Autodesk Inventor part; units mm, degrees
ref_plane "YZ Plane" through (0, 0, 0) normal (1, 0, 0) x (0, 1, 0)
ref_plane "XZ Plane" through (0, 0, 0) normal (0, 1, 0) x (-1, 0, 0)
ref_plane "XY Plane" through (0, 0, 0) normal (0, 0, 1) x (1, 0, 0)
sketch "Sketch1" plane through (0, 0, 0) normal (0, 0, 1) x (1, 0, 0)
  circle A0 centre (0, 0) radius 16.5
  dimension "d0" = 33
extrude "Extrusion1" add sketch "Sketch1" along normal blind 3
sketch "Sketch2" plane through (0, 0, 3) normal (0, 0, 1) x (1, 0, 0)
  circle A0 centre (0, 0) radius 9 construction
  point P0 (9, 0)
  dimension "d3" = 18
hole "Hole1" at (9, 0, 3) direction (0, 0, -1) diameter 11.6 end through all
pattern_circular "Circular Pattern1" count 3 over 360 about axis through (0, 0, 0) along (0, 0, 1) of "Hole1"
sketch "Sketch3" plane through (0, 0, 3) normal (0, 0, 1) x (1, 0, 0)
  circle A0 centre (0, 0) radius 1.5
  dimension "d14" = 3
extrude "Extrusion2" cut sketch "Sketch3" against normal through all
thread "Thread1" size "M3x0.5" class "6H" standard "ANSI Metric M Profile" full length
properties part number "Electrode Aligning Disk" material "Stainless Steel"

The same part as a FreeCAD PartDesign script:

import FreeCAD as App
import Part
import Sketcher
Q = App.Units.Quantity

doc = App.newDocument("Part")
body = doc.addObject("PartDesign::Body", "Body")

# Sketch on XY plane
sketch1 = doc.addObject("Sketcher::SketchObject", "Sketch")
body.addObject(sketch1)
sketch1.AttachmentSupport = (doc.XY_Plane, [""])
sketch1.MapMode = "FlatFace"
sketch1.addGeometry(Part.Circle(App.Vector(0, 0, 0), App.Vector(0, 0, 1), 16), False)
sketch1.addConstraint([
    Sketcher.Constraint("Coincident", 0, 3, -1, 1),
    Sketcher.Constraint("Diameter", 0, Q("33 mm")),
])
pad1 = doc.addObject("PartDesign::Pad", "Pad")
body.addObject(pad1)
pad1.Profile = sketch1
pad1.Length = 3

# Sketch on XY plane
sketch2 = doc.addObject("Sketcher::SketchObject", "Sketch001")
body.addObject(sketch2)
sketch2.AttachmentSupport = (doc.XY_Plane, [""])
sketch2.MapMode = "FlatFace"
sketch2.AttachmentOffset = App.Placement(App.Vector(0, 0, 3), App.Rotation())
sketch2.addGeometry(Part.Circle(App.Vector(9, 0, 0), App.Vector(0, 0, 1), 6), False)
sketch2.addConstraint([
    Sketcher.Constraint("PointOnObject", 0, 3, -1),
    Sketcher.Constraint("Diameter", 0, Q("11.6 mm")),
    Sketcher.Constraint("DistanceX", -1, 1, 0, 3, Q("9 mm")),
])
doc.recompute()
hole = doc.addObject("PartDesign::Hole", "Hole")
body.addObject(hole)
hole.Profile = sketch2
hole.ThreadType = "None"
hole.Diameter = 11.6
hole.DepthType = "ThroughAll"
doc.recompute()

polarpattern = doc.addObject("PartDesign::PolarPattern", "PolarPattern")
body.addObject(polarpattern)
polarpattern.Originals = [hole]
polarpattern.Axis = (doc.Z_Axis, [""])
polarpattern.Angle = 360
polarpattern.Occurrences = 3
body.Tip = polarpattern

# Sketch on XY plane
sketch3 = doc.addObject("Sketcher::SketchObject", "Sketch002")
body.addObject(sketch3)
sketch3.AttachmentSupport = (doc.XY_Plane, [""])
sketch3.MapMode = "FlatFace"
sketch3.AttachmentOffset = App.Placement(App.Vector(0, 0, 3), App.Rotation())
sketch3.addGeometry(Part.Circle(App.Vector(0, 0, 0), App.Vector(0, 0, 1), 1.5), False)
sketch3.addConstraint([
    Sketcher.Constraint("Coincident", 0, 3, -1, 1),
    Sketcher.Constraint("Diameter", 0, Q("3 mm")),
])
pocket1 = doc.addObject("PartDesign::Pocket", "Pocket")
body.addObject(pocket1)
pocket1.Profile = sketch3
pocket1.Type = "ThroughAll"

doc.recompute()
